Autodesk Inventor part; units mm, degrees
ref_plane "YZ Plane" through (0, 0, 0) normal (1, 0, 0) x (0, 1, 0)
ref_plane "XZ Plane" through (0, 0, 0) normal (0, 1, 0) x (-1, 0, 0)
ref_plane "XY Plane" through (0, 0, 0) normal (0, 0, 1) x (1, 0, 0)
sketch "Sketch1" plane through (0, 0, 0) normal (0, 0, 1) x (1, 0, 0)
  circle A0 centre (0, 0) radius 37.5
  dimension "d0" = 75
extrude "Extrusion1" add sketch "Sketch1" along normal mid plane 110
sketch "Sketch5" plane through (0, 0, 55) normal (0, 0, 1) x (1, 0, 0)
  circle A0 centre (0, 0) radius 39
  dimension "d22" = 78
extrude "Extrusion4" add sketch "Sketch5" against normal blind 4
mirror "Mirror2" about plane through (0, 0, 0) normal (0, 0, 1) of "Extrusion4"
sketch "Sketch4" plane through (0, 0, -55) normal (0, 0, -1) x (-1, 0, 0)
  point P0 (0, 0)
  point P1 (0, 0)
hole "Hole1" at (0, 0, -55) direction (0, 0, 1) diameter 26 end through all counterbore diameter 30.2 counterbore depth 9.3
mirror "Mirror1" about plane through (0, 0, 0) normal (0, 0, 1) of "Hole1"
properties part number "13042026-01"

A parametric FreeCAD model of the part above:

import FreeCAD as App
import Part
import Sketcher
Q = App.Units.Quantity

doc = App.newDocument("Part")
body = doc.addObject("PartDesign::Body", "Body")

sketch1 = body.newObject("Sketcher::SketchObject", "Sketch")
sketch1.AttachmentSupport = (doc.getObject("XY_Plane"), [""])
sketch1.MapMode = "FlatFace"
sketch1.addGeometry(Part.Circle(App.Vector(0, 0, 0), App.Vector(0, 0, 1), 38), False)
sketch1.addConstraint(Sketcher.Constraint("Coincident", 0, 3, -1, 1))
sketch1.addConstraint(Sketcher.Constraint("Diameter", 0, Q("75 mm")))
pad1 = body.newObject("PartDesign::Pad", "Pad")
pad1.Profile = sketch1
pad1.Length = 110
pad1.Midplane = True

sketch2 = body.newObject("Sketcher::SketchObject", "Sketch001")
sketch2.AttachmentSupport = (doc.getObject("XY_Plane"), [""])
sketch2.MapMode = "FlatFace"
sketch2.AttachmentOffset = App.Placement(App.Vector(0, 0, 55), App.Rotation())
sketch2.addGeometry(Part.Circle(App.Vector(0, 0, 0), App.Vector(0, 0, 1), 39), False)
sketch2.addConstraint(Sketcher.Constraint("Coincident", 0, 3, -1, 1))
sketch2.addConstraint(Sketcher.Constraint("Diameter", 0, Q("78 mm")))
pad2 = body.newObject("PartDesign::Pad", "Pad001")
pad2.Profile = sketch2
pad2.Length = 4
pad2.Reversed = True
doc.recompute()

mirrored = body.newObject("PartDesign::Mirrored", "Mirrored")
mirrored.Originals = [pad2]
mirrored.MirrorPlane = (doc.getObject("XY_Plane"), [""])
body.Tip = mirrored

sketch3 = body.newObject("Sketcher::SketchObject", "Sketch002")
sketch3.AttachmentSupport = (doc.getObject("XY_Plane"), [""])
sketch3.MapMode = "FlatFace"
sketch3.AttachmentOffset = App.Placement(App.Vector(0, 0, -55), App.Rotation())
sketch3.addGeometry(Part.Circle(App.Vector(0, 0, 0), App.Vector(0, 0, 1), 13), False)
sketch3.addConstraint(Sketcher.Constraint("Coincident", 0, 3, -1, 1))
sketch3.addConstraint(Sketcher.Constraint("Diameter", 0, Q("26 mm")))
doc.recompute()
hole = body.newObject("PartDesign::Hole", "Hole")
hole.Profile = sketch3
hole.ThreadType = "None"
hole.Diameter = 26
hole.DepthType = "ThroughAll"
hole.HoleCutType = "Counterbore"
hole.HoleCutDiameter = 30.2
hole.HoleCutDepth = 9.3
hole.Reversed = True
doc.recompute()

mirrored2 = body.newObject("PartDesign::Mirrored", "Mirrored001")
mirrored2.Originals = [hole]
mirrored2.MirrorPlane = (doc.getObject("XY_Plane"), [""])
body.Tip = mirrored2

doc.recompute()
